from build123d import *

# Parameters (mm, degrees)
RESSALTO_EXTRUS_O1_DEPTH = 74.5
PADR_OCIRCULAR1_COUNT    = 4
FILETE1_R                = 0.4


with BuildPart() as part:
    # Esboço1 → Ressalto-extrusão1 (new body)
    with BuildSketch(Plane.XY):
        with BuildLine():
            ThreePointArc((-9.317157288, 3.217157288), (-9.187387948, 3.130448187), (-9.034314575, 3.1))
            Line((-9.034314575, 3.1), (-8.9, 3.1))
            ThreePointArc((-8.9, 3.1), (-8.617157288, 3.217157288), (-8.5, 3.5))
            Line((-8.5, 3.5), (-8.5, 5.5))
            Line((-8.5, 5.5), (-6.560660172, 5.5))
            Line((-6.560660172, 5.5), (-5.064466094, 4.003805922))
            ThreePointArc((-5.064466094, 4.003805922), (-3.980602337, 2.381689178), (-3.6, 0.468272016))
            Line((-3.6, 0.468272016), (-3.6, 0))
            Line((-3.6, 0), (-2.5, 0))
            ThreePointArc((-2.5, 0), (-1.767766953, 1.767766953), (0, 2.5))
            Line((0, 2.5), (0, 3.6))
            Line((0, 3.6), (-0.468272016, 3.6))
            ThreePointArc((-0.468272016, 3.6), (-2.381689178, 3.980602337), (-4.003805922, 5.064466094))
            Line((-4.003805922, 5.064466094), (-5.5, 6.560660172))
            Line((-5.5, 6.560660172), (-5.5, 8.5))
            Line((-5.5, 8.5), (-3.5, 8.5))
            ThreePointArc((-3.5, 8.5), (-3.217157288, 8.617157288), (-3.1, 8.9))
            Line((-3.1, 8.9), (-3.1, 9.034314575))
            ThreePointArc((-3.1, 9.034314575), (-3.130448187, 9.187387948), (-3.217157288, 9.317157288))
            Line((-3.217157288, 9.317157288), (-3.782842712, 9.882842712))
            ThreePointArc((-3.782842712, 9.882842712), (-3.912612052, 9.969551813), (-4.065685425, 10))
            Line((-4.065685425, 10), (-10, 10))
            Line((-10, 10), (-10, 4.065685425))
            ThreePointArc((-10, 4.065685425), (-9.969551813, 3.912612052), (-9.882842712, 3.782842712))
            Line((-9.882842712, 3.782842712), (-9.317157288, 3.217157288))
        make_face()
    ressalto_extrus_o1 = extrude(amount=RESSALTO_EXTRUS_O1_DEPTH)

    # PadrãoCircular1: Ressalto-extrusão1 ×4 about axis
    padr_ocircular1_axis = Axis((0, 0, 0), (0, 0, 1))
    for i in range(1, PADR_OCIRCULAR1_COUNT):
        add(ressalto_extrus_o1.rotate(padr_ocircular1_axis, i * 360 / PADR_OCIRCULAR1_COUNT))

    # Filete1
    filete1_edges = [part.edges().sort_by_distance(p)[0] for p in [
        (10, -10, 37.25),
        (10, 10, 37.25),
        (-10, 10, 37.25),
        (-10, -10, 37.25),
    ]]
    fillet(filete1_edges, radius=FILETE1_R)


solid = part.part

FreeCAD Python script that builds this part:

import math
import FreeCAD as App
import Part
import Sketcher
from FreeCAD import Vector


def edges_at(feature, points):
    """Names of the edges that pass closest to the given points."""
    edges = feature.Shape.Edges
    near = lambda p: min(range(len(edges)), key=lambda i: edges[i].distToShape(Part.Vertex(*p))[0])
    return sorted({f"Edge{near(p) + 1}" for p in points})

doc = App.newDocument("Part")
body = doc.addObject("PartDesign::Body", "Body")

sketch1 = body.newObject("Sketcher::SketchObject", "Sketch")
sketch1.AttachmentSupport = (doc.getObject("XY_Plane"), [""])
sketch1.MapMode = "FlatFace"
sketch1.addGeometry([
    Part.ArcOfCircle(Part.Circle(Vector(-9.03, 3.5, 0), Vector(0, 0, 1), 0.4), math.radians(-135), math.radians(-90)),
    Part.LineSegment(Vector(-9.03, 3.1, 0), Vector(-8.9, 3.1, 0)),
    Part.ArcOfCircle(Part.Circle(Vector(-8.9, 3.5, 0), Vector(0, 0, 1), 0.4), math.radians(-90), math.radians(0)),
    Part.LineSegment(Vector(-8.5, 3.5, 0), Vector(-8.5, 5.5, 0)),
    Part.LineSegment(Vector(-8.5, 5.5, 0), Vector(-6.56, 5.5, 0)),
    Part.LineSegment(Vector(-6.56, 5.5, 0), Vector(-5.06, 4, 0)),
    Part.ArcOfCircle(Part.Circle(Vector(-8.6, 0.47, 0), Vector(0, 0, 1), 5), math.radians(0), math.radians(45)),
    Part.LineSegment(Vector(-3.6, 0.47, 0), Vector(-3.6, 0, 0)),
    Part.LineSegment(Vector(-3.6, 0, 0), Vector(-2.5, 0, 0)),
    Part.ArcOfCircle(Part.Circle(Vector(0, 0, 0), Vector(0, 0, 1), 2.5), math.radians(90), math.radians(180)),
    Part.LineSegment(Vector(0, 2.5, 0), Vector(0, 3.6, 0)),
    Part.LineSegment(Vector(0, 3.6, 0), Vector(-0.47, 3.6, 0)),
    Part.ArcOfCircle(Part.Circle(Vector(-0.47, 8.6, 0), Vector(0, 0, 1), 5), math.radians(-135), math.radians(-90)),
    Part.LineSegment(Vector(-4, 5.06, 0), Vector(-5.5, 6.56, 0)),
    Part.LineSegment(Vector(-5.5, 6.56, 0), Vector(-5.5, 8.5, 0)),
    Part.LineSegment(Vector(-5.5, 8.5, 0), Vector(-3.5, 8.5, 0)),
    Part.ArcOfCircle(Part.Circle(Vector(-3.5, 8.9, 0), Vector(0, 0, 1), 0.4), math.radians(-90), math.radians(0)),
    Part.LineSegment(Vector(-3.1, 8.9, 0), Vector(-3.1, 9.03, 0)),
    Part.ArcOfCircle(Part.Circle(Vector(-3.5, 9.03, 0), Vector(0, 0, 1), 0.4), math.radians(0), math.radians(45)),
    Part.LineSegment(Vector(-3.22, 9.32, 0), Vector(-3.78, 9.88, 0)),
    Part.ArcOfCircle(Part.Circle(Vector(-4.07, 9.6, 0), Vector(0, 0, 1), 0.4), math.radians(45), math.radians(90)),
    Part.LineSegment(Vector(-4.07, 10, 0), Vector(-10, 10, 0)),
    Part.LineSegment(Vector(-10, 10, 0), Vector(-10, 4.07, 0)),
    Part.ArcOfCircle(Part.Circle(Vector(-9.6, 4.07, 0), Vector(0, 0, 1), 0.4), math.radians(180), math.radians(225)),
    Part.LineSegment(Vector(-9.88, 3.78, 0), Vector(-9.32, 3.22, 0)),
], False)
sketch1.addConstraint([
    Sketcher.Constraint("Tangent", 0, 2, 1, 1),
    Sketcher.Constraint("Tangent", 1, 2, 2, 1),
    Sketcher.Constraint("Tangent", 2, 2, 3, 1),
    Sketcher.Constraint("Coincident", 3, 2, 4, 1),
    Sketcher.Constraint("Coincident", 4, 2, 5, 1),
    Sketcher.Constraint("Tangent", 5, 2, 6, 2),
    Sketcher.Constraint("Tangent", 6, 1, 7, 1),
    Sketcher.Constraint("Coincident", 7, 2, 8, 1),
    Sketcher.Constraint("Coincident", 8, 2, 9, 2),
    Sketcher.Constraint("Coincident", 9, 1, 10, 1),
    Sketcher.Constraint("Coincident", 10, 2, 11, 1),
    Sketcher.Constraint("Tangent", 11, 2, 12, 2),
    Sketcher.Constraint("Tangent", 12, 1, 13, 1),
    Sketcher.Constraint("Coincident", 13, 2, 14, 1),
    Sketcher.Constraint("Coincident", 14, 2, 15, 1),
    Sketcher.Constraint("Tangent", 15, 2, 16, 1),
    Sketcher.Constraint("Tangent", 16, 2, 17, 1),
    Sketcher.Constraint("Tangent", 17, 2, 18, 1),
    Sketcher.Constraint("Tangent", 18, 2, 19, 1),
    Sketcher.Constraint("Tangent", 19, 2, 20, 1),
    Sketcher.Constraint("Tangent", 20, 2, 21, 1),
    Sketcher.Constraint("Coincident", 21, 2, 22, 1),
    Sketcher.Constraint("Tangent", 22, 2, 23, 1),
    Sketcher.Constraint("Tangent", 23, 2, 24, 1),
    Sketcher.Constraint("Tangent", 24, 2, 0, 1),
    Sketcher.Constraint("Horizontal", 1),
    Sketcher.Constraint("Vertical", 3),
    Sketcher.Constraint("Horizontal", 4),
    Sketcher.Constraint("Vertical", 7),
    Sketcher.Constraint("Horizontal", 8),
    Sketcher.Constraint("Vertical", 10),
    Sketcher.Constraint("Horizontal", 11),
    Sketcher.Constraint("Vertical", 14),
    Sketcher.Constraint("Horizontal", 15),
    Sketcher.Constraint("Vertical", 17),
    Sketcher.Constraint("Horizontal", 21),
    Sketcher.Constraint("Vertical", 22),
    Sketcher.Constraint("Coincident", 9, 3, -1, 1),
    Sketcher.Constraint("Equal", 0, 2),
    Sketcher.Constraint("Equal", 6, 12),
    Sketcher.Constraint("Equal", 2, 16),
    Sketcher.Constraint("Equal", 16, 18),
    Sketcher.Constraint("Equal", 18, 20),
    Sketcher.Constraint("Equal", 20, 23),
    Sketcher.Constraint("PointOnObject", 7, 2, -1),
    Sketcher.Constraint("PointOnObject", 9, 1, -2),
    Sketcher.Constraint("Parallel", 5, 13),
    Sketcher.Constraint("Parallel", 13, 19),
    Sketcher.Constraint("Parallel", 19, 24),
    Sketcher.Constraint("Equal", 15, 3),
    Sketcher.Constraint("Equal", 11, 7),
    Sketcher.Constraint("Equal", 8, 10),
    Sketcher.Constraint("Equal", 4, 14),
    Sketcher.Constraint("Equal", 1, 17),
    Sketcher.Constraint("Equal", 21, 22),
    Sketcher.Constraint("Equal", 5, 13),
    Sketcher.Constraint("Equal", 19, 24),
    Sketcher.Constraint("Radius", 6, 5.0),
    Sketcher.Constraint("Radius", 0, 0.4),
    Sketcher.Constraint("Radius", 9, 2.5),
    Sketcher.Constraint("DistanceX", 15, 1, 15, 2, 2.0),
    Sketcher.Constraint("DistanceX", 8, 1, 8, 2, 1.1),
    Sketcher.Constraint("DistanceY", -1, 1, 20, 2, 10.0),
    Sketcher.Constraint("DistanceY", 4, 2, 14, 2, 3.0),
    Sketcher.Constraint("Distance", 19, 0.8),
    Sketcher.Constraint("DistanceY", -1, 1, 0, 3, 3.5),
    Sketcher.Constraint("DistanceX", 4, 1, 4, 2, 1.93934),
])
pad1 = body.newObject("PartDesign::Pad", "Pad")
pad1.Profile = sketch1
pad1.Length = 74.5
doc.recompute()

polarpattern = body.newObject("PartDesign::PolarPattern", "PolarPattern")
polarpattern.Originals = [pad1]
polarpattern.Axis = (doc.getObject("Z_Axis"), [""])
polarpattern.Angle = 360
polarpattern.Occurrences = 4
body.Tip = polarpattern
doc.recompute()

fillet = body.newObject("PartDesign::Fillet", "Fillet")
fillet.Base = (polarpattern, edges_at(polarpattern, [
    (10, -10, 37.25),
    (10, 10, 37.25),
    (-10, 10, 37.25),
    (-10, -10, 37.25),
]))
fillet.Radius = 0.4

doc.recompute()
